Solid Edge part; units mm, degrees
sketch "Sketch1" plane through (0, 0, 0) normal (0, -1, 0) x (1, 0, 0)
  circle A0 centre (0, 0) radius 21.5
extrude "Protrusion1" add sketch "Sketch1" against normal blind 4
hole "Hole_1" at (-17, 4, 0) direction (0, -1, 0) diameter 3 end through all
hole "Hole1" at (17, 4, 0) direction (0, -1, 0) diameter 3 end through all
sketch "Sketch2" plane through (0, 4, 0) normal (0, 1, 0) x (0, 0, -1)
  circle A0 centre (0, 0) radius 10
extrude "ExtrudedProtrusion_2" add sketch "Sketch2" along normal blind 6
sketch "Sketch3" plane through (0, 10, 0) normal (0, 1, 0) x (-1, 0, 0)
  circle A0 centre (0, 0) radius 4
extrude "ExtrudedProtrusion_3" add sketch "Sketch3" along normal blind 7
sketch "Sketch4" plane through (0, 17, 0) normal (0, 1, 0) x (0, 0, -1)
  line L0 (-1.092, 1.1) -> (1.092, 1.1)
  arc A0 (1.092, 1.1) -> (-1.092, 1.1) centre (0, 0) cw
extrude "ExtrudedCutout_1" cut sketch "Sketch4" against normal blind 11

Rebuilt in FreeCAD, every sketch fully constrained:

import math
import FreeCAD as App
import Part
import Sketcher
Q = App.Units.Quantity

doc = App.newDocument("Part")
body = doc.addObject("PartDesign::Body", "Body")

# Sketch on XZ plane
sketch1 = body.newObject("Sketcher::SketchObject", "Sketch")
sketch1.AttachmentSupport = (doc.getObject("XZ_Plane"), [""])
sketch1.MapMode = "FlatFace"
sketch1.addGeometry(Part.Circle(App.Vector(0, 0, 0), App.Vector(0, 0, 1), 21.5), False)
sketch1.addConstraint([
    Sketcher.Constraint("Coincident", 0, 3, -1, 1),
    Sketcher.Constraint("Diameter", 0, Q("43 mm")),
])
pad1 = body.newObject("PartDesign::Pad", "Pad")
pad1.Profile = sketch1
pad1.Length = 4
pad1.Reversed = True

# Sketch on XZ plane
sketch2 = body.newObject("Sketcher::SketchObject", "Sketch001")
sketch2.AttachmentSupport = (doc.getObject("XZ_Plane"), [""])
sketch2.MapMode = "FlatFace"
sketch2.AttachmentOffset = App.Placement(App.Vector(0, 0, -4), App.Rotation())
sketch2.addGeometry(Part.Circle(App.Vector(-17, 0, 0), App.Vector(0, 0, 1), 1.5), False)
sketch2.addConstraint([
    Sketcher.Constraint("PointOnObject", 0, 3, -1),
    Sketcher.Constraint("Diameter", 0, Q("3 mm")),
    Sketcher.Constraint("DistanceX", 0, 3, -1, 1, Q("17 mm")),
])
doc.recompute()
hole = body.newObject("PartDesign::Hole", "Hole")
hole.Profile = sketch2
hole.ThreadType = "None"
hole.Diameter = 3
hole.DepthType = "ThroughAll"
hole.Reversed = True

# Sketch on XZ plane
sketch3 = body.newObject("Sketcher::SketchObject", "Sketch002")
sketch3.AttachmentSupport = (doc.getObject("XZ_Plane"), [""])
sketch3.MapMode = "FlatFace"
sketch3.AttachmentOffset = App.Placement(App.Vector(0, 0, -4), App.Rotation())
sketch3.addGeometry(Part.Circle(App.Vector(17, 0, 0), App.Vector(0, 0, 1), 1.5), False)
sketch3.addConstraint([
    Sketcher.Constraint("PointOnObject", 0, 3, -1),
    Sketcher.Constraint("Diameter", 0, Q("3 mm")),
    Sketcher.Constraint("DistanceX", -1, 1, 0, 3, Q("17 mm")),
])
doc.recompute()
hole2 = body.newObject("PartDesign::Hole", "Hole001")
hole2.Profile = sketch3
hole2.ThreadType = "None"
hole2.Diameter = 3
hole2.DepthType = "ThroughAll"
hole2.Reversed = True

# Sketch on XZ plane
sketch4 = body.newObject("Sketcher::SketchObject", "Sketch003")
sketch4.AttachmentSupport = (doc.getObject("XZ_Plane"), [""])
sketch4.MapMode = "FlatFace"
sketch4.AttachmentOffset = App.Placement(App.Vector(0, 0, -4), App.Rotation())
sketch4.addGeometry(Part.Circle(App.Vector(0, 0, 0), App.Vector(0, 0, 1), 10), False)
sketch4.addConstraint([
    Sketcher.Constraint("Coincident", 0, 3, -1, 1),
    Sketcher.Constraint("Diameter", 0, Q("20 mm")),
])
pad2 = body.newObject("PartDesign::Pad", "Pad001")
pad2.Profile = sketch4
pad2.Length = 6
pad2.Reversed = True

# Sketch on XZ plane
sketch5 = body.newObject("Sketcher::SketchObject", "Sketch004")
sketch5.AttachmentSupport = (doc.getObject("XZ_Plane"), [""])
sketch5.MapMode = "FlatFace"
sketch5.AttachmentOffset = App.Placement(App.Vector(0, 0, -10), App.Rotation())
sketch5.addGeometry(Part.Circle(App.Vector(0, 0, 0), App.Vector(0, 0, 1), 4), False)
sketch5.addConstraint([
    Sketcher.Constraint("Coincident", 0, 3, -1, 1),
    Sketcher.Constraint("Diameter", 0, Q("8 mm")),
])
pad3 = body.newObject("PartDesign::Pad", "Pad002")
pad3.Profile = sketch5
pad3.Length = 7
pad3.Reversed = True

# Sketch on XZ plane
sketch6 = body.newObject("Sketcher::SketchObject", "Sketch005")
sketch6.AttachmentSupport = (doc.getObject("XZ_Plane"), [""])
sketch6.MapMode = "FlatFace"
sketch6.AttachmentOffset = App.Placement(App.Vector(0, 0, -17), App.Rotation())
sketch6.addGeometry([
    Part.LineSegment(App.Vector(-1.1, -1.092, 0), App.Vector(-1.1, 1.092, 0)),
    Part.ArcOfCircle(Part.Circle(App.Vector(0, 0, 0), App.Vector(0, 0, 1), 1.549988), math.radians(-135.209108), math.radians(135.209108)),
], False)
sketch6.addConstraint([
    Sketcher.Constraint("Coincident", 0, 1, 1, 1),
    Sketcher.Constraint("Coincident", 1, 2, 0, 2),
    Sketcher.Constraint("Vertical", 0),
    Sketcher.Constraint("Coincident", 1, 3, -1, 1),
    Sketcher.Constraint("Radius", 1, Q("1.55 mm")),
    Sketcher.Constraint("DistanceX", 0, 1, -1, 1, Q("1.1 mm")),
])
pocket1 = body.newObject("PartDesign::Pocket", "Pocket")
pocket1.Profile = sketch6
pocket1.Length = 11
pocket1.Reversed = True

doc.recompute()
